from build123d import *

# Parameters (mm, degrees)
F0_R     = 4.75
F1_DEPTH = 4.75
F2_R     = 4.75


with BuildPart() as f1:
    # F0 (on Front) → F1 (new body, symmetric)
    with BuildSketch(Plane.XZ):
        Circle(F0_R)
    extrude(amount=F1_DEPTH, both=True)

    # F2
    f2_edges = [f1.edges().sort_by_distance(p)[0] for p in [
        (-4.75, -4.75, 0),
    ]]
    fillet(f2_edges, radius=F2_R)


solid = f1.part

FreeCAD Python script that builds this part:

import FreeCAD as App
import Part
import Sketcher
from FreeCAD import Vector


def edges_at(feature, points):
    """Names of the edges that pass closest to the given points."""
    edges = feature.Shape.Edges
    near = lambda p: min(range(len(edges)), key=lambda i: edges[i].distToShape(Part.Vertex(*p))[0])
    return sorted({f"Edge{near(p) + 1}" for p in points})

doc = App.newDocument("Part")
params = doc.addObject("Spreadsheet::Sheet", "Params")
for row, (alias, value) in enumerate([
    ("sketch1_diameter", "9.5 mm"),
    ("pad1_length", "9.5 mm"),
    ("fillet_radius", "4.75 mm"),
], start=1):
    params.set(f"A{row}", alias)
    params.set(f"B{row}", "=" + value)
    params.setAlias(f"B{row}", alias)

body = doc.addObject("PartDesign::Body", "Body")

# Sketch on XZ plane
sketch1 = body.newObject("Sketcher::SketchObject", "Sketch")
sketch1.AttachmentSupport = (doc.getObject("XZ_Plane"), [""])
sketch1.MapMode = "FlatFace"
sketch1.addGeometry(Part.Circle(Vector(0, 0, 0), Vector(0, 0, 1), 4.8), False)
sketch1.addConstraint([
    Sketcher.Constraint("Coincident", 0, 3, -1, 1),
    Sketcher.Constraint("Diameter", 0, 9.5),
])
sketch1.setExpression("Constraints[1]", "Params.sketch1_diameter")
pad1 = body.newObject("PartDesign::Pad", "Pad")
pad1.Profile = sketch1
pad1.setExpression("Length", "Params.pad1_length")
pad1.Midplane = True
doc.recompute()

fillet = body.newObject("PartDesign::Fillet", "Fillet")
fillet.Base = (pad1, edges_at(pad1, [(-4.75, -4.75, 0)]))
fillet.setExpression("Radius", "Params.fillet_radius")

doc.recompute()
